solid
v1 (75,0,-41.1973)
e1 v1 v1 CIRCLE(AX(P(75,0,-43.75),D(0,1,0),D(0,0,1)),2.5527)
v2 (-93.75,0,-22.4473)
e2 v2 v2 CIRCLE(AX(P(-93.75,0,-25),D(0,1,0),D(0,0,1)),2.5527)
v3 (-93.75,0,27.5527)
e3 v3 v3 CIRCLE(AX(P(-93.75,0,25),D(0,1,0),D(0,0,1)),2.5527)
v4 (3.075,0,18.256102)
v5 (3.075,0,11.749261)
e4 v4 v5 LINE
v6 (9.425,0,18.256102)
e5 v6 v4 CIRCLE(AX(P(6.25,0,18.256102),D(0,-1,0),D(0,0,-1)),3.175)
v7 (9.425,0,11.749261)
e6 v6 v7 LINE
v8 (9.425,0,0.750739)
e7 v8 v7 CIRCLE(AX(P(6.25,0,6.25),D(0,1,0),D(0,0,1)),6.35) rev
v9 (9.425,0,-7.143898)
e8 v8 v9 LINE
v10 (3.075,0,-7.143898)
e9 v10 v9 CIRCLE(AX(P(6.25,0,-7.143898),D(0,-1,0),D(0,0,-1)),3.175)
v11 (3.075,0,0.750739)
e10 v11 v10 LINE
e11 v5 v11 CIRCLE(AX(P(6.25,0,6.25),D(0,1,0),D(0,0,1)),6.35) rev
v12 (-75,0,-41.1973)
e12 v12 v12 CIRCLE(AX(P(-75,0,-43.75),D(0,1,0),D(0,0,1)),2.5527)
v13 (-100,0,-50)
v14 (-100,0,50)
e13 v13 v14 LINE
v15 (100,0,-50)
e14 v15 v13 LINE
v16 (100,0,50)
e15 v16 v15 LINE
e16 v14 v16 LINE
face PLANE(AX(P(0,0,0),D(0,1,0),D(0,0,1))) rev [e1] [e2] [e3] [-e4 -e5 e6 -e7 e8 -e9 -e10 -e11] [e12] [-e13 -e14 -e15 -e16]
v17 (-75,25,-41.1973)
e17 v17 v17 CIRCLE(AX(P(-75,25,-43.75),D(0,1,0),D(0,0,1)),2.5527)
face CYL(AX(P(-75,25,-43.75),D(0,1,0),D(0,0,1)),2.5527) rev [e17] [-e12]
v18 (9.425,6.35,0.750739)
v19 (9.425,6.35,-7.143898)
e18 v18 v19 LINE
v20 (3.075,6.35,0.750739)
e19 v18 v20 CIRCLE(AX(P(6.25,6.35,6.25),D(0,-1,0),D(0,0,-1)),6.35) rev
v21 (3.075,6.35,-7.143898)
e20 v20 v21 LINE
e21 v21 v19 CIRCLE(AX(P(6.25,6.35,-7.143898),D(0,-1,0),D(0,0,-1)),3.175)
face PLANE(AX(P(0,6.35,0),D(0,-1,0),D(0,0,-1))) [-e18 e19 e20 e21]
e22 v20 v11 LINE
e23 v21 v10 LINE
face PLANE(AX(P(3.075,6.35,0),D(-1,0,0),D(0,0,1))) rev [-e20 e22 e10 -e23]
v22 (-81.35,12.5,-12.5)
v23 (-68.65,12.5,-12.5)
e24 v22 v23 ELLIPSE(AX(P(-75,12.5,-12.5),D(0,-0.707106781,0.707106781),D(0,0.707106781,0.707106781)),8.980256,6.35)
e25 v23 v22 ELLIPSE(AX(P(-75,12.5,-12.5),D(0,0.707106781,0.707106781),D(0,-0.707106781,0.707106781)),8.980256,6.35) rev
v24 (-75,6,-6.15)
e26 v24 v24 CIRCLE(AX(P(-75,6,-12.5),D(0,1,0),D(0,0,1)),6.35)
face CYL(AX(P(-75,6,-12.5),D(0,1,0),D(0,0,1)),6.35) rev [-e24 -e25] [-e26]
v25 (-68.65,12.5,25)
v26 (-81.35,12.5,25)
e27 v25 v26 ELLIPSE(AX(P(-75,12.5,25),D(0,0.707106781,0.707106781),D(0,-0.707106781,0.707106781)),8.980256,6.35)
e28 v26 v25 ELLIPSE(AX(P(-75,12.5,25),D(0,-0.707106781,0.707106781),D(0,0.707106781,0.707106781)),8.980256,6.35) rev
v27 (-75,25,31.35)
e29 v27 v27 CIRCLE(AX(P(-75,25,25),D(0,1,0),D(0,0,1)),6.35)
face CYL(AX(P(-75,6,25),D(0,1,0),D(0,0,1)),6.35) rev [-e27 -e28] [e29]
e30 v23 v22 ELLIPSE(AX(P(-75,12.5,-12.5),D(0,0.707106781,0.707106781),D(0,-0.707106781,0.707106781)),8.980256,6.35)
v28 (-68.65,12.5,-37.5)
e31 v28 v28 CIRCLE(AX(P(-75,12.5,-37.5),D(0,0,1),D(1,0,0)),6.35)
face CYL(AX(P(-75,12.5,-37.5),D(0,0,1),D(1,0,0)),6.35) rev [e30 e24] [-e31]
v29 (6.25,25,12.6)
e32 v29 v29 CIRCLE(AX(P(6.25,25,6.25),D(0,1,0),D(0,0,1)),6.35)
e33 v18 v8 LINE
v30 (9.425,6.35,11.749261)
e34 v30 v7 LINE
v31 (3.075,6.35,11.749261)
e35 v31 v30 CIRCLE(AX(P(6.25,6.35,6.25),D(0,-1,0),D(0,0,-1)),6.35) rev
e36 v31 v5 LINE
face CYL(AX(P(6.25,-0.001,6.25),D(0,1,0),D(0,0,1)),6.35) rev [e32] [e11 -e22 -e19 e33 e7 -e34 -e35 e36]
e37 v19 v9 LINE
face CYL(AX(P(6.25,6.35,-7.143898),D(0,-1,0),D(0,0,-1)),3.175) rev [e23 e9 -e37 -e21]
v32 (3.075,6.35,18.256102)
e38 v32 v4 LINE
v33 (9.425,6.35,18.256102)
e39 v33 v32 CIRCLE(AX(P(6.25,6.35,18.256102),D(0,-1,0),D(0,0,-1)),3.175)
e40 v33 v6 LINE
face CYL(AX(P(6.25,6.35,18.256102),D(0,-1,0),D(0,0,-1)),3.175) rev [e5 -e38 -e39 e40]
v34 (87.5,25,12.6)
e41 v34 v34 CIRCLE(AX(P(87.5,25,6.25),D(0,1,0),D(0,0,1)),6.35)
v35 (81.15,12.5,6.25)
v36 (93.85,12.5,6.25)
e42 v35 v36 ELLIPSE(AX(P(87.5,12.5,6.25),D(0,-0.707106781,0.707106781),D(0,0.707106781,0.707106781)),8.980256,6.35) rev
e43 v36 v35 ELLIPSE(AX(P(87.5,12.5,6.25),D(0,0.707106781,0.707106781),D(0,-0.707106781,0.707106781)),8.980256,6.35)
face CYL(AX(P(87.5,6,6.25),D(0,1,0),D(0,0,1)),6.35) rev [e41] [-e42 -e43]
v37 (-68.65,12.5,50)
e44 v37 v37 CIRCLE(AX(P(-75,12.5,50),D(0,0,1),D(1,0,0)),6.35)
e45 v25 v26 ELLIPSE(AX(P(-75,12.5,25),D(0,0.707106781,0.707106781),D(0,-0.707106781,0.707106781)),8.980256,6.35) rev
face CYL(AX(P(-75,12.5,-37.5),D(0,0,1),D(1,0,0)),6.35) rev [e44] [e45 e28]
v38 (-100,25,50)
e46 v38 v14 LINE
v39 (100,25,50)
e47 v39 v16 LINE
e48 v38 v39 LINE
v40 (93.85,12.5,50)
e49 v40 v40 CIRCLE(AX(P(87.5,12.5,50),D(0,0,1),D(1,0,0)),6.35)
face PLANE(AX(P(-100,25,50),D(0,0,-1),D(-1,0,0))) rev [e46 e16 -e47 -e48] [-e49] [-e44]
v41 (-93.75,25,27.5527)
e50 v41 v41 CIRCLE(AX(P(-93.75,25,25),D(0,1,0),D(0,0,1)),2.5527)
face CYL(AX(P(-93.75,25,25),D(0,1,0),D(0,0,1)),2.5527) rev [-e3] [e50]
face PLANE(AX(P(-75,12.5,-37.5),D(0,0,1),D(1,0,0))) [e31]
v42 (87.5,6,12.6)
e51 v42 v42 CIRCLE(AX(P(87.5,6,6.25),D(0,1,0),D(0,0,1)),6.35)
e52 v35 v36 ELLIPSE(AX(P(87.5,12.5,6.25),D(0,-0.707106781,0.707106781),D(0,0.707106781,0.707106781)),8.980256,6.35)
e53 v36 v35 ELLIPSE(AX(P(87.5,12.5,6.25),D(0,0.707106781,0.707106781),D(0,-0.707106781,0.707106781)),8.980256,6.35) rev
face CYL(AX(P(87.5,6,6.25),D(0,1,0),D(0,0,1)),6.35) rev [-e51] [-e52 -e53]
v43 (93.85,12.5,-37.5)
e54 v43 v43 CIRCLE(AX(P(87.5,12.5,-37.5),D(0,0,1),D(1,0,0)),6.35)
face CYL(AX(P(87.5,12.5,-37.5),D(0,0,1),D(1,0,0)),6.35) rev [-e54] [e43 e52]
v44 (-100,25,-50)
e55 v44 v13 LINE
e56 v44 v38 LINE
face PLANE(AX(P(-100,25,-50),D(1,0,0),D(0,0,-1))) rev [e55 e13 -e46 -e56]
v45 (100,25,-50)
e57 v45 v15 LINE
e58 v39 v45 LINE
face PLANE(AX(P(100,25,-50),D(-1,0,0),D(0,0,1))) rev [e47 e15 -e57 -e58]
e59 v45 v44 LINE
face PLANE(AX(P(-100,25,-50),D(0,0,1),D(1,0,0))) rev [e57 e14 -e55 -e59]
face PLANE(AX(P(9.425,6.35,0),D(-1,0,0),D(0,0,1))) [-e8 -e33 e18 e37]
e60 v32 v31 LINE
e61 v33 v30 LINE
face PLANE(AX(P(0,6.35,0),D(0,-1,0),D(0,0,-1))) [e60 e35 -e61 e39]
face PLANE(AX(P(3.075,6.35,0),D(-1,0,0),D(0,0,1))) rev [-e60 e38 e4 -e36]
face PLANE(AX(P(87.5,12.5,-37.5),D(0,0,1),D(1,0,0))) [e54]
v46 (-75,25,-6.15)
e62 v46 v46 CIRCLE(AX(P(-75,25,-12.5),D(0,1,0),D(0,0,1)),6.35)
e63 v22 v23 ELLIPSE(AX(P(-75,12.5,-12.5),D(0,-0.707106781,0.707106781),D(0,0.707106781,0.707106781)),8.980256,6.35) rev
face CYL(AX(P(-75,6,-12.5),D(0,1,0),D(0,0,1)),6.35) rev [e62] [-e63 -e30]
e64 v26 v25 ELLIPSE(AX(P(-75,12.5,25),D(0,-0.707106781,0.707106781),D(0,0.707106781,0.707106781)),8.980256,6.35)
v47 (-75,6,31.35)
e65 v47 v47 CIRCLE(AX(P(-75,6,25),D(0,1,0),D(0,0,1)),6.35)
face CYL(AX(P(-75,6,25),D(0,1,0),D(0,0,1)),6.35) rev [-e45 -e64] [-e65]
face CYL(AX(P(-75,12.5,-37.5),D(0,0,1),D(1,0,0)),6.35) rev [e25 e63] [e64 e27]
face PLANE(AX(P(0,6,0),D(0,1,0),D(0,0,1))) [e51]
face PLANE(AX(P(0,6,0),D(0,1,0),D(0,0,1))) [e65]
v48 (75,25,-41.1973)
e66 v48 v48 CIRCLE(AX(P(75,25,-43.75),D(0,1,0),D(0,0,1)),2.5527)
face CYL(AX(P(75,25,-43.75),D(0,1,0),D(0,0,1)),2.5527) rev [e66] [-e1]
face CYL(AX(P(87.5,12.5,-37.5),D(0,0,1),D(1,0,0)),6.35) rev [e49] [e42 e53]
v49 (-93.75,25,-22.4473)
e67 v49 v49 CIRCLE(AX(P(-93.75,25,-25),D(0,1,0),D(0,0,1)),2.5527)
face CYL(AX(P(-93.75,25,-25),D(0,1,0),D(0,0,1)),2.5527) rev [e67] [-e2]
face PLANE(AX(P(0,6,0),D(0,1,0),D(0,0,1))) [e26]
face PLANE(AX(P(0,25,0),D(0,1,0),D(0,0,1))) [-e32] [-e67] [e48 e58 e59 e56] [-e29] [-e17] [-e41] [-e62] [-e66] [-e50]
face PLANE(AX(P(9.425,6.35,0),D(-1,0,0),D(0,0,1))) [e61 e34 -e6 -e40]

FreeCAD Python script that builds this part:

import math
import FreeCAD as App
import Part
import Sketcher

V = App.Vector


def add_polygon(sketch, points):
    """Adds a closed chain of lines whose ends are joined by coincident constraints."""
    first, n = sketch.GeometryCount, len(points)
    for a, b in zip(points, points[1:] + points[:1]):
        sketch.addGeometry(Part.LineSegment(App.Vector(*a, 0), App.Vector(*b, 0)), False)
    for i in range(n):
        sketch.addConstraint(Sketcher.Constraint("Coincident", first + i, 2, first + (i + 1) % n, 1))

doc = App.newDocument("Part")
params = doc.addObject("Spreadsheet::Sheet", "Params")
for row, (alias, value) in enumerate([
    ("sketch1_width", "200 mm"),
    ("sketch1_height", "100 mm"),
    ("pad1_length", "25 mm"),
    ("sketch2_diameter", "12.7 mm"),
    ("pocket1_length", "87.5 mm"),
    ("sketch3_diameter", "12.7 mm"),
    ("pocket2_length", "19 mm"),
    ("sketch4_diameter", "12.7 mm"),
    ("sketch5_radius", "6.35 mm"),
    ("pocket4_length", "6.35 mm"),
    ("hole_diameter", "5.1054 mm"),
    ("hole_depth", "25 mm"),
], start=1):
    params.set(f"A{row}", alias)
    params.set(f"B{row}", "=" + value)
    params.setAlias(f"B{row}", alias)

body = doc.addObject("PartDesign::Body", "Body")

sketch1 = body.newObject("Sketcher::SketchObject", "Sketch")
sketch1.AttachmentSupport = (doc.getObject("XZ_Plane"), [""])
sketch1.MapMode = "FlatFace"
add_polygon(sketch1, [(-100, -50), (-100, 50), (100, 50), (100, -50)])
sketch1.addConstraint([
    Sketcher.Constraint("Vertical", 0),
    Sketcher.Constraint("Horizontal", 1),
    Sketcher.Constraint("Vertical", 2),
    Sketcher.Constraint("Horizontal", 3),
    Sketcher.Constraint("Symmetric", 0, 2, 2, 2, -1, 1),
    Sketcher.Constraint("DistanceX", 1, 1, 1, 2, 200.0),
    Sketcher.Constraint("DistanceY", 0, 1, 0, 2, 100.0),
])
sketch1.setExpression("Constraints[9]", "Params.sketch1_width")
sketch1.setExpression("Constraints[10]", "Params.sketch1_height")
pad1 = body.newObject("PartDesign::Pad", "Pad")
pad1.Profile = sketch1
pad1.setExpression("Length", "Params.pad1_length")
pad1.Reversed = True

sketch2 = body.newObject("Sketcher::SketchObject", "Sketch001")
sketch2.AttachmentSupport = (doc.getObject("XY_Plane"), [""])
sketch2.MapMode = "FlatFace"
sketch2.AttachmentOffset = App.Placement(V(0, 0, 50), App.Rotation())
sketch2.addGeometry([
    Part.Circle(V(-75, 12, 0), V(0, 0, 1), 6),
    Part.Circle(V(88, 12, 0), V(0, 0, 1), 6),
], False)
sketch2.addConstraint([
    Sketcher.Constraint("Equal", 0, 1),
    Sketcher.Constraint("Horizontal", 0, 3, 1, 3),
    Sketcher.Constraint("Diameter", 0, 12.7),
    Sketcher.Constraint("DistanceX", 0, 3, -1, 1, 75.0),
    Sketcher.Constraint("DistanceY", -1, 1, 0, 3, 12.5),
    Sketcher.Constraint("DistanceX", -1, 1, 1, 3, 87.5),
])
sketch2.setExpression("Constraints[2]", "Params.sketch2_diameter")
pocket1 = body.newObject("PartDesign::Pocket", "Pocket")
pocket1.Profile = sketch2
pocket1.setExpression("Length", "Params.pocket1_length")

sketch3 = body.newObject("Sketcher::SketchObject", "Sketch002")
sketch3.AttachmentSupport = (doc.getObject("XZ_Plane"), [""])
sketch3.MapMode = "FlatFace"
sketch3.AttachmentOffset = App.Placement(V(0, 0, -25), App.Rotation())
sketch3.addGeometry([
    Part.Circle(V(-75, -12, 0), V(0, 0, 1), 6),
    Part.Circle(V(-75, 25, 0), V(0, 0, 1), 6),
    Part.Circle(V(88, 6, 0), V(0, 0, 1), 6),
], False)
sketch3.addConstraint([
    Sketcher.Constraint("Equal", 0, 1),
    Sketcher.Constraint("Equal", 1, 2),
    Sketcher.Constraint("Vertical", 0, 3, 1, 3),
    Sketcher.Constraint("Diameter", 0, 12.7),
    Sketcher.Constraint("DistanceX", 0, 3, -1, 1, 75.0),
    Sketcher.Constraint("DistanceY", -1, 1, 1, 3, 25.0),
    Sketcher.Constraint("DistanceY", 0, 3, -1, 1, 12.5),
    Sketcher.Constraint("DistanceX", -1, 1, 2, 3, 87.5),
    Sketcher.Constraint("DistanceY", -1, 1, 2, 3, 6.25),
])
sketch3.setExpression("Constraints[3]", "Params.sketch3_diameter")
pocket2 = body.newObject("PartDesign::Pocket", "Pocket001")
pocket2.Profile = sketch3
pocket2.setExpression("Length", "Params.pocket2_length")
pocket2.Reversed = True

sketch4 = body.newObject("Sketcher::SketchObject", "Sketch003")
sketch4.AttachmentSupport = (doc.getObject("XZ_Plane"), [""])
sketch4.MapMode = "FlatFace"
sketch4.AttachmentOffset = App.Placement(V(0, 0, -25), App.Rotation())
sketch4.addGeometry(Part.Circle(V(6, 6, 0), V(0, 0, 1), 6), False)
sketch4.addConstraint([
    Sketcher.Constraint("Diameter", 0, 12.7),
    Sketcher.Constraint("DistanceX", -1, 1, 0, 3, 6.25),
    Sketcher.Constraint("DistanceY", -1, 1, 0, 3, 6.25),
])
sketch4.setExpression("Constraints[0]", "Params.sketch4_diameter")
pocket3 = body.newObject("PartDesign::Pocket", "Pocket002")
pocket3.Profile = sketch4
pocket3.Type = "UpToFirst"
pocket3.Reversed = True

sketch5 = body.newObject("Sketcher::SketchObject", "Sketch004")
sketch5.AttachmentSupport = (doc.getObject("XZ_Plane"), [""])
sketch5.MapMode = "FlatFace"
sketch5.addGeometry([
    Part.LineSegment(V(9.4, -7.1, 0), V(9.4, 0.8, 0)),
    Part.ArcOfCircle(Part.Circle(V(6.2, 6.2, 0), V(0, 0, 1), 6.3), math.radians(-120), math.radians(-60)),
    Part.LineSegment(V(3.1, 0.8, 0), V(3.1, -7.1, 0)),
    Part.ArcOfCircle(Part.Circle(V(6.2, -7.1, 0), V(0, 0, 1), 3.2), math.radians(180), math.radians(360)),
    Part.LineSegment(V(9.4, 11.7, 0), V(9.4, 18.3, 0)),
    Part.ArcOfCircle(Part.Circle(V(6.2, 18.3, 0), V(0, 0, 1), 3.2), math.radians(0), math.radians(180)),
    Part.LineSegment(V(3.1, 18.3, 0), V(3.1, 11.7, 0)),
    Part.ArcOfCircle(Part.Circle(V(6.2, 6.2, 0), V(0, 0, 1), 6.3), math.radians(60), math.radians(120)),
], False)
sketch5.addConstraint([
    Sketcher.Constraint("Coincident", 0, 2, 1, 2),
    Sketcher.Constraint("Coincident", 1, 1, 2, 1),
    Sketcher.Constraint("Tangent", 2, 2, 3, 1),
    Sketcher.Constraint("Tangent", 3, 2, 0, 1),
    Sketcher.Constraint("Tangent", 4, 2, 5, 1),
    Sketcher.Constraint("Tangent", 5, 2, 6, 1),
    Sketcher.Constraint("Coincident", 6, 2, 7, 2),
    Sketcher.Constraint("Coincident", 7, 1, 4, 1),
    Sketcher.Constraint("Vertical", 0),
    Sketcher.Constraint("Vertical", 2),
    Sketcher.Constraint("Vertical", 4),
    Sketcher.Constraint("Vertical", 6),
    Sketcher.Constraint("Coincident", 7, 3, 1, 3),
    Sketcher.Constraint("Equal", 3, 5),
    Sketcher.Constraint("Equal", 1, 7),
    Sketcher.Constraint("Horizontal", 0, 2, 1, 1),
    Sketcher.Constraint("Horizontal", 6, 2, 7, 1),
    Sketcher.Constraint("Radius", 1, 6.35),
    Sketcher.Constraint("Radius", 3, 3.175),
    Sketcher.Constraint("DistanceY", 3, 3, 5, 3, 25.4),
    Sketcher.Constraint("DistanceX", -1, 1, 1, 3, 6.25),
    Sketcher.Constraint("DistanceY", -1, 1, 1, 3, 6.25),
    Sketcher.Constraint("DistanceY", 4, 1, 4, 2, 6.506841),
])
sketch5.setExpression("Constraints[17]", "Params.sketch5_radius")
pocket4 = body.newObject("PartDesign::Pocket", "Pocket003")
pocket4.Profile = sketch5
pocket4.setExpression("Length", "Params.pocket4_length")

sketch6 = body.newObject("Sketcher::SketchObject", "Sketch005")
sketch6.AttachmentSupport = (doc.getObject("XZ_Plane"), [""])
sketch6.MapMode = "FlatFace"
sketch6.AttachmentOffset = App.Placement(V(0, 0, -25), App.Rotation())
sketch6.addGeometry([
    Part.Circle(V(-75, -43.8, 0), V(0, 0, 1), 2.6),
    Part.Circle(V(75, -43.8, 0), V(0, 0, 1), 2.6),
    Part.Circle(V(-93.8, -25, 0), V(0, 0, 1), 2.6),
    Part.Circle(V(-93.8, 25, 0), V(0, 0, 1), 2.6),
], False)
sketch6.addConstraint([
    Sketcher.Constraint("Equal", 0, 1),
    Sketcher.Constraint("Equal", 1, 2),
    Sketcher.Constraint("Equal", 2, 3),
    Sketcher.Constraint("Symmetric", 0, 3, 1, 3, -2),
    Sketcher.Constraint("Symmetric", 2, 3, 3, 3, -1),
    Sketcher.Constraint("DistanceX", 0, 3, -1, 1, 75.0),
    Sketcher.Constraint("DistanceY", 2, 3, -1, 1, 25.0),
    Sketcher.Constraint("Diameter", 0, 5.1054),
    Sketcher.Constraint("DistanceY", 0, 3, -1, 1, 43.75),
    Sketcher.Constraint("DistanceX", 2, 3, -1, 1, 93.75),
])
doc.recompute()
hole = body.newObject("PartDesign::Hole", "Hole")
hole.Profile = sketch6
hole.ThreadType = "None"
hole.setExpression("Diameter", "Params.hole_diameter")
hole.DepthType = "Dimension"
hole.setExpression("Depth", "Params.hole_depth")
hole.DrillPoint = "Flat"
hole.Reversed = True

doc.recompute()
